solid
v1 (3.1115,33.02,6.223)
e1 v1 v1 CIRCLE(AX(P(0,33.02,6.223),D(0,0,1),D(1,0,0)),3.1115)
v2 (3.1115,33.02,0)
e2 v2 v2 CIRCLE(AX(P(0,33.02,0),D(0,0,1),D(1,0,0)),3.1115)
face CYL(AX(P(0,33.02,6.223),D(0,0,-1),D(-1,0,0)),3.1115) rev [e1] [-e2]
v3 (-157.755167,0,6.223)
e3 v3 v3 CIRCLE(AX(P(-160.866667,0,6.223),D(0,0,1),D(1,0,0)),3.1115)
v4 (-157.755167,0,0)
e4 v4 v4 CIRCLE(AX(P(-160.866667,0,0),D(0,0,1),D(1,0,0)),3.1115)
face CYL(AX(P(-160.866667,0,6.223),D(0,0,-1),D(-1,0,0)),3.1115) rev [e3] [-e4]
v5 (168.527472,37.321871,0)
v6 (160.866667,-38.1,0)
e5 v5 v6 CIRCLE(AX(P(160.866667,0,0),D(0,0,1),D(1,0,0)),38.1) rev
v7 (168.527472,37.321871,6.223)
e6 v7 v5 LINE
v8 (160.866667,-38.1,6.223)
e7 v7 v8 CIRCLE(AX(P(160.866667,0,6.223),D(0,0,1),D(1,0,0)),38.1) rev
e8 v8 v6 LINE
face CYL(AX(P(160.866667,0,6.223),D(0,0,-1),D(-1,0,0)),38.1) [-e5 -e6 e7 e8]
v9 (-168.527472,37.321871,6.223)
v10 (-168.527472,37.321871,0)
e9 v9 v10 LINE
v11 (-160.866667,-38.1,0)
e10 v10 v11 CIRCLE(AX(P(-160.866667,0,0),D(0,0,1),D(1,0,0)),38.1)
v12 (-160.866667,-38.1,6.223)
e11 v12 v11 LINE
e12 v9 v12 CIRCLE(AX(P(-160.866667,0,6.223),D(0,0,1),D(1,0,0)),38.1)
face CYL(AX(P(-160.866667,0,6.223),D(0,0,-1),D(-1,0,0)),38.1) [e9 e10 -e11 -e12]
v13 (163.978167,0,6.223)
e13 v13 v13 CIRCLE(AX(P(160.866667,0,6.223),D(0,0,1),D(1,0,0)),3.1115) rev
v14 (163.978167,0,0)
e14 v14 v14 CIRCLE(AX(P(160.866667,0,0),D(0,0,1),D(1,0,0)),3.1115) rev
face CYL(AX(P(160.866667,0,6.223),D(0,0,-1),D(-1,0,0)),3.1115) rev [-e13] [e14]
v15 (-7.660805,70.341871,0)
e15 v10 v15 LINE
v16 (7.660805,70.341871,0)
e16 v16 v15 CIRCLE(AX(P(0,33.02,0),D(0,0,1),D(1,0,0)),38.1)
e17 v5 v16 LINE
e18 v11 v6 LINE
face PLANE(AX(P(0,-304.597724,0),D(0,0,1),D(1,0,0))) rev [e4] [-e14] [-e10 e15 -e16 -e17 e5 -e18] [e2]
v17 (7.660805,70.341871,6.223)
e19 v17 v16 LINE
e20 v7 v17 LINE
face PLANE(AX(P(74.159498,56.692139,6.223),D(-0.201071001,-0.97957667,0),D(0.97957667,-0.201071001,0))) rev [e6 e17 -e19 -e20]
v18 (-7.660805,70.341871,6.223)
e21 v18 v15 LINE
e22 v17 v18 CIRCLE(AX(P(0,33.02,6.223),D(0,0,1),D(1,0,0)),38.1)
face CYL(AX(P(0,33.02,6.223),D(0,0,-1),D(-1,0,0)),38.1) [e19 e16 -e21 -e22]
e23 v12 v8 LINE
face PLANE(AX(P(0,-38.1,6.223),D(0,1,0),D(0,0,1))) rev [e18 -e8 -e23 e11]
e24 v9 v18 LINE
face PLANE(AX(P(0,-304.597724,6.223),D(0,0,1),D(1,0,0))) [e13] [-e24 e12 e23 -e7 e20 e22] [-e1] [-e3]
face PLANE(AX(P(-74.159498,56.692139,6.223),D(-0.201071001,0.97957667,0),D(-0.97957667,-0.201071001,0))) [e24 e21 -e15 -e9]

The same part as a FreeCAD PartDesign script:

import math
import FreeCAD as App
import Part
import Sketcher

V = App.Vector
Q = App.Units.Quantity

doc = App.newDocument("Part")
body = doc.addObject("PartDesign::Body", "Body")

# Sketch on XY plane
sketch1 = body.newObject("Sketcher::SketchObject", "Sketch")
sketch1.AttachmentSupport = (doc.getObject("XY_Plane"), [""])
sketch1.MapMode = "FlatFace"
sketch1.addGeometry([
    Part.ArcOfCircle(Part.Circle(V(-160.866667, 0, 0), V(0, 0, 1), 38.1), math.radians(101.599595), math.radians(270)),  # 0
    Part.LineSegment(V(-160.866667, -38.1, 0), V(160.866667, -38.1, 0)),  # 1
    Part.ArcOfCircle(Part.Circle(V(160.866667, 0, 0), V(0, 0, 1), 38.1), math.radians(-90), math.radians(78.400405)),  # 2
    Part.LineSegment(V(168.527472, 37.321871, 0), V(7.660805, 70.341871, 0)),  # 3
    Part.ArcOfCircle(Part.Circle(V(0, 33.02, 0), V(0, 0, 1), 38.1), math.radians(78.400405), math.radians(101.599595)),  # 4
    Part.LineSegment(V(-7.660805, 70.341871, 0), V(-168.527472, 37.321871, 0)),  # 5
    Part.Circle(V(-160.866667, 0, 0), V(0, 0, 1), 3.1115),  # 6
    Part.Circle(V(160.866667, 0, 0), V(0, 0, 1), 3.1115),  # 7
    Part.Circle(V(0, 33.02, 0), V(0, 0, 1), 3.1115),  # 8
], False)
sketch1.addConstraint([
    Sketcher.Constraint("Tangent", 0, 2, 1, 1),
    Sketcher.Constraint("Tangent", 1, 2, 2, 1),
    Sketcher.Constraint("Tangent", 2, 2, 3, 1),
    Sketcher.Constraint("Tangent", 3, 2, 4, 1),
    Sketcher.Constraint("Tangent", 4, 2, 5, 1),
    Sketcher.Constraint("Tangent", 5, 2, 0, 1),
    Sketcher.Constraint("Horizontal", 1),
    Sketcher.Constraint("Coincident", 6, 3, 0, 3),
    Sketcher.Constraint("Coincident", 7, 3, 2, 3),
    Sketcher.Constraint("Coincident", 8, 3, 4, 3),
    Sketcher.Constraint("Equal", 0, 2),
    Sketcher.Constraint("Equal", 2, 4),
    Sketcher.Constraint("Equal", 6, 7),
    Sketcher.Constraint("Equal", 7, 8),
    Sketcher.Constraint("Symmetric", 0, 3, 2, 3, -1, 1),
    Sketcher.Constraint("PointOnObject", 4, 3, -2),
    Sketcher.Constraint("Radius", 0, Q("1.5 in")),
    Sketcher.Constraint("Diameter", 6, Q("0.245 in")),
    Sketcher.Constraint("DistanceY", -1, 1, 4, 3, Q("1.3 in")),
    Sketcher.Constraint("Distance", 3, Q("164.220598 mm")),
])
pad1 = body.newObject("PartDesign::Pad", "Pad")
pad1.Profile = sketch1
pad1.Length = Q("0.245 in")

doc.recompute()
